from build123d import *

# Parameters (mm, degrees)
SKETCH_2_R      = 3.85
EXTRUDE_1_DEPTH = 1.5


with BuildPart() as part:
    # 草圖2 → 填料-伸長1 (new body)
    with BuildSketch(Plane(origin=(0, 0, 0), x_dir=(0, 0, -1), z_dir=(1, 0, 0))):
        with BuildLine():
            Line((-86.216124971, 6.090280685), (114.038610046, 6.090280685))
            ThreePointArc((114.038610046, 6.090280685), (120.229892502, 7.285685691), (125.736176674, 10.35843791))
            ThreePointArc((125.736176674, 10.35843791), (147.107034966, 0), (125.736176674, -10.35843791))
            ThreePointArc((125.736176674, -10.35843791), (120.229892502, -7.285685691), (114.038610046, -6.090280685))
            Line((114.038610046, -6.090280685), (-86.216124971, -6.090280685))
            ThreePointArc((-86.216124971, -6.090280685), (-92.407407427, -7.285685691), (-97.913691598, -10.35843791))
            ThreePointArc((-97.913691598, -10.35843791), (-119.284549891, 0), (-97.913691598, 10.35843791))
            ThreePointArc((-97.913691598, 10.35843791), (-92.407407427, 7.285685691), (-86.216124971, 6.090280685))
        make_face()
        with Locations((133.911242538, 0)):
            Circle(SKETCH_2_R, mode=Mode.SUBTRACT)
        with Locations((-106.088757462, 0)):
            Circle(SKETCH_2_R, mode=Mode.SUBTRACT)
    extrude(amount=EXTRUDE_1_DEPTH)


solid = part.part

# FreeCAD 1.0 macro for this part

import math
import FreeCAD as App
import Part
import Sketcher
from FreeCAD import Vector

doc = App.newDocument("Part")
params = doc.addObject("Spreadsheet::Sheet", "Params")
for row, (alias, value) in enumerate([
    ("sketch1_diameter", "7.7 mm"),
    ("pad1_length", "1.5 mm"),
], start=1):
    params.set(f"A{row}", alias)
    params.set(f"B{row}", "=" + value)
    params.setAlias(f"B{row}", alias)

body = doc.addObject("PartDesign::Body", "Body")

sketch1 = body.newObject("Sketcher::SketchObject", "Sketch")
sketch1.AttachmentSupport = (doc.getObject("YZ_Plane"), [""])
sketch1.MapMode = "FlatFace"
sketch1.addGeometry(Part.LineSegment(Vector(6.1, -114, 0), Vector(6.1, 86.2, 0)), False)
sketch1.addGeometry(Part.ArcOfCircle(Part.Circle(Vector(26, 85.6, 0), Vector(0, 0, 1), 19.9), math.radians(142), math.radians(178)), False)
sketch1.addGeometry(Part.ArcOfCircle(Part.Circle(Vector(0, 106.1, 0), Vector(0, 0, 1), 13.2), math.radians(-38), math.radians(218)), False)
sketch1.addGeometry(Part.ArcOfCircle(Part.Circle(Vector(-26, 85.6, 0), Vector(0, 0, 1), 19.9), math.radians(2), math.radians(38)), False)
sketch1.addGeometry(Part.LineSegment(Vector(-6.1, 86.2, 0), Vector(-6.1, -114, 0)), False)
sketch1.addGeometry(Part.ArcOfCircle(Part.Circle(Vector(-26, -113.4, 0), Vector(0, 0, 1), 19.9), math.radians(-38), math.radians(-2)), False)
sketch1.addGeometry(Part.ArcOfCircle(Part.Circle(Vector(0, -133.9, 0), Vector(0, 0, 1), 13.2), math.radians(142), math.radians(398)), False)
sketch1.addGeometry(Part.ArcOfCircle(Part.Circle(Vector(26, -113.4, 0), Vector(0, 0, 1), 19.9), math.radians(-178), math.radians(-142)), False)
sketch1.addGeometry(Part.Circle(Vector(0, -133.9, 0), Vector(0, 0, 1), 3.9), False)
sketch1.addGeometry(Part.Circle(Vector(0, 106.1, 0), Vector(0, 0, 1), 3.9), False)
sketch1.addConstraint(Sketcher.Constraint("Coincident", 0, 2, 1, 2))
sketch1.addConstraint(Sketcher.Constraint("Tangent", 1, 1, 2, 1))
sketch1.addConstraint(Sketcher.Constraint("Tangent", 2, 2, 3, 2))
sketch1.addConstraint(Sketcher.Constraint("Coincident", 3, 1, 4, 1))
sketch1.addConstraint(Sketcher.Constraint("Coincident", 4, 2, 5, 2))
sketch1.addConstraint(Sketcher.Constraint("Tangent", 5, 1, 6, 1))
sketch1.addConstraint(Sketcher.Constraint("Tangent", 6, 2, 7, 2))
sketch1.addConstraint(Sketcher.Constraint("Coincident", 7, 1, 0, 1))
sketch1.addConstraint(Sketcher.Constraint("Vertical", 0))
sketch1.addConstraint(Sketcher.Constraint("Vertical", 4))
sketch1.addConstraint(Sketcher.Constraint("Coincident", 8, 3, 6, 3))
sketch1.addConstraint(Sketcher.Constraint("Coincident", 9, 3, 2, 3))
sketch1.addConstraint(Sketcher.Constraint("Equal", 1, 3))
sketch1.addConstraint(Sketcher.Constraint("Equal", 3, 5))
sketch1.addConstraint(Sketcher.Constraint("Equal", 2, 6))
sketch1.addConstraint(Sketcher.Constraint("Equal", 5, 7))
sketch1.addConstraint(Sketcher.Constraint("Equal", 8, 9))
sketch1.addConstraint(Sketcher.Constraint("Symmetric", 1, 3, 3, 3, -2))
sketch1.addConstraint(Sketcher.Constraint("Symmetric", 5, 3, 7, 3, -2))
sketch1.addConstraint(Sketcher.Constraint("Horizontal", 0, 2, 3, 1))
sketch1.addConstraint(Sketcher.Constraint("Vertical", 3, 3, 5, 3))
sketch1.addConstraint(Sketcher.Constraint("Diameter", 8, 7.7))
sketch1.addConstraint(Sketcher.Constraint("DistanceY", 6, 3, 2, 3, 240.0))
sketch1.addConstraint(Sketcher.Constraint("Radius", 1, 19.896272))
sketch1.addConstraint(Sketcher.Constraint("Radius", 2, 13.195792))
sketch1.addConstraint(Sketcher.Constraint("DistanceX", 3, 3, 0, 2, 32.066901))
sketch1.addConstraint(Sketcher.Constraint("DistanceY", 0, 1, 0, 2, 200.254735))
sketch1.addConstraint(Sketcher.Constraint("DistanceY", -1, 1, 1, 3, 85.58754))
sketch1.setExpression("Constraints[21]", "Params.sketch1_diameter")
pad1 = body.newObject("PartDesign::Pad", "Pad")
pad1.Profile = sketch1
pad1.setExpression("Length", "Params.pad1_length")

doc.recompute()
